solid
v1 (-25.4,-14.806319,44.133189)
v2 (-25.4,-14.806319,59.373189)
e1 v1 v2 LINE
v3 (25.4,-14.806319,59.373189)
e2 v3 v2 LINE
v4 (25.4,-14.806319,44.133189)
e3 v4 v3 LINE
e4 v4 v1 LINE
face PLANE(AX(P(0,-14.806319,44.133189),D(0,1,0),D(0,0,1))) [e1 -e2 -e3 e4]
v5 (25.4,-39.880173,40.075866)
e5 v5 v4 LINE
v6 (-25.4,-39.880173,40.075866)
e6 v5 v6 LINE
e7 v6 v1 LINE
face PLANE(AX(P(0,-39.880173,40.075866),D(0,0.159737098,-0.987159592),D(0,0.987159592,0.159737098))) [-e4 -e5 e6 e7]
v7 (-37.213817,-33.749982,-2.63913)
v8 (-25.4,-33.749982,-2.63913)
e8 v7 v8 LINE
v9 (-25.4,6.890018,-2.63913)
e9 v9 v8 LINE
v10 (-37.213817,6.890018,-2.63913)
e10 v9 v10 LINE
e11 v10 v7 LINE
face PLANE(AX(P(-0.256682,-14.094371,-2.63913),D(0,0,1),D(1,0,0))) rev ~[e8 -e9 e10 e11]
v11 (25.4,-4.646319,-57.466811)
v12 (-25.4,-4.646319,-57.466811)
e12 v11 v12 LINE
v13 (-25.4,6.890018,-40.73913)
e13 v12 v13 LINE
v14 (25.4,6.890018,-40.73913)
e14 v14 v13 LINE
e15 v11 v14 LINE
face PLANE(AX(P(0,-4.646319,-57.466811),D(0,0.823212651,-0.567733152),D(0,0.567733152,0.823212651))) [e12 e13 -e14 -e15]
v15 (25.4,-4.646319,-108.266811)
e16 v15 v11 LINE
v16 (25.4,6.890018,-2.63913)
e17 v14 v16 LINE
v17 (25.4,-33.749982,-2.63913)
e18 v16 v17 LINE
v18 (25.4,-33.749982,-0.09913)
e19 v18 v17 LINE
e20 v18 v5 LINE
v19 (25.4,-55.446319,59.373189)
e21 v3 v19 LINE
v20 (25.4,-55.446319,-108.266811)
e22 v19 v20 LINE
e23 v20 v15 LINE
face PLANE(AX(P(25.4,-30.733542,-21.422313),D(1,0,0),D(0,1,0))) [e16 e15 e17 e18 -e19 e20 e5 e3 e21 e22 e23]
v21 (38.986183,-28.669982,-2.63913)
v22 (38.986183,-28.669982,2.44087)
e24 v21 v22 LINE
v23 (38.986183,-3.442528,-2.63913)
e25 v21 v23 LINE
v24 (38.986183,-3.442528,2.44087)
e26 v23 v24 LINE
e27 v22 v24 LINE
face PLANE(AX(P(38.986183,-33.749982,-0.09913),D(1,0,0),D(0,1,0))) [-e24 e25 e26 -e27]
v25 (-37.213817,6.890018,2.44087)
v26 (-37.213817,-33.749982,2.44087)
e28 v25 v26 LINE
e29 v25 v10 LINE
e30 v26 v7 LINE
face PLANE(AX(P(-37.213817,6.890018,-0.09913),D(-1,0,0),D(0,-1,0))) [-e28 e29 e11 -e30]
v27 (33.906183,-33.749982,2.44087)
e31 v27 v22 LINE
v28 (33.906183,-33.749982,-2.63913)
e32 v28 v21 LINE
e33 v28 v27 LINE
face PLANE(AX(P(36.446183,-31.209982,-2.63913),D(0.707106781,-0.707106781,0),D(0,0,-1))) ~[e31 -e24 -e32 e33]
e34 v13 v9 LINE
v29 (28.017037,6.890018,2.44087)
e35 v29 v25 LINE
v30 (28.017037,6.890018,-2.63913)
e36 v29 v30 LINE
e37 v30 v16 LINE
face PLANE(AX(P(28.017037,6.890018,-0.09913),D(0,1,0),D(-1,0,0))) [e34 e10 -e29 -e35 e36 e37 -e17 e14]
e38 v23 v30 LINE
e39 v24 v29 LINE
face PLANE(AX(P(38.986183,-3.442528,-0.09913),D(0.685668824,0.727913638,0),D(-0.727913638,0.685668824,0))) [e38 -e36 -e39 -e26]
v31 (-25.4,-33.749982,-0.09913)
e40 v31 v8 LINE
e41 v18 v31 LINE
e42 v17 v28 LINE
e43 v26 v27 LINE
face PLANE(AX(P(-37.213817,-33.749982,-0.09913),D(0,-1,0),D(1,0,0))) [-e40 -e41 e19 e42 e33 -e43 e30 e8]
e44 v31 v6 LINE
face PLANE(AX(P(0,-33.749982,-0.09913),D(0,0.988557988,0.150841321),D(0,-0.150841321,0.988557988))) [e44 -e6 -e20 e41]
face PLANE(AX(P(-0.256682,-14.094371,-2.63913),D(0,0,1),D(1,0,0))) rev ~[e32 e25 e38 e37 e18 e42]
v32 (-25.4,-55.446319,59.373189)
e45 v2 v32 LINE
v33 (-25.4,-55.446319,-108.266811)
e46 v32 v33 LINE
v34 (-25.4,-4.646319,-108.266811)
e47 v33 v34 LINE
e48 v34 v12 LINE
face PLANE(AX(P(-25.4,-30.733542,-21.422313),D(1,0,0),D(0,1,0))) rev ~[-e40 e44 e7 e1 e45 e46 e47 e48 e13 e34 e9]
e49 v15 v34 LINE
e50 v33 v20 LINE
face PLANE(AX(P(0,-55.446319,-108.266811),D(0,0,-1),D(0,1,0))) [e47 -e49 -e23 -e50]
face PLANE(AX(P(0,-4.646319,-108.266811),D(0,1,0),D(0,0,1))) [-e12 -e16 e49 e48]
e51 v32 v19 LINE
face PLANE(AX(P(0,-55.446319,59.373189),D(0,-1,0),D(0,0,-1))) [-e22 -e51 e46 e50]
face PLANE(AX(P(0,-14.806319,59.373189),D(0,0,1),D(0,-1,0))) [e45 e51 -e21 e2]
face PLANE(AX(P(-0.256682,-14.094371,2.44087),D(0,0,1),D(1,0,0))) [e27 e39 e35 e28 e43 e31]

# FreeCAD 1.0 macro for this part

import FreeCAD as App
import Part
import Sketcher
from FreeCAD import Vector
Q = App.Units.Quantity


def edges_at(feature, points):
    """Names of the edges that pass closest to the given points."""
    edges = feature.Shape.Edges
    near = lambda p: min(range(len(edges)), key=lambda i: edges[i].distToShape(Part.Vertex(*p))[0])
    return sorted({f"Edge{near(p) + 1}" for p in points})

doc = App.newDocument("Part")
body = doc.addObject("PartDesign::Body", "Body")

sketch1 = doc.addObject("Sketcher::SketchObject", "Sketch")
body.addObject(sketch1)
sketch1.AttachmentSupport = (doc.YZ_Plane, [""])
sketch1.MapMode = "FlatFace"
sketch1.addGeometry(Part.LineSegment(Vector(-15, 59, 0), Vector(-55, 59, 0)), False)
sketch1.addGeometry(Part.LineSegment(Vector(-55, 59, 0), Vector(-55, -108, 0)), False)
sketch1.addGeometry(Part.LineSegment(Vector(-55, -108, 0), Vector(-5, -108, 0)), False)
sketch1.addGeometry(Part.LineSegment(Vector(-5, -108, 0), Vector(-5, -57, 0)), False)
sketch1.addGeometry(Part.LineSegment(Vector(-5, -57, 0), Vector(7, -41, 0)), False)
sketch1.addGeometry(Part.LineSegment(Vector(7, -41, 0), Vector(7, 0, 0)), False)
sketch1.addGeometry(Part.LineSegment(Vector(7, 0, 0), Vector(-34, 0, 0)), False)
sketch1.addGeometry(Part.LineSegment(Vector(-34, 0, 0), Vector(-40, 40, 0)), False)
sketch1.addGeometry(Part.LineSegment(Vector(-40, 40, 0), Vector(-15, 44, 0)), False)
sketch1.addGeometry(Part.LineSegment(Vector(-15, 44, 0), Vector(-15, 59, 0)), False)
sketch1.addConstraint(Sketcher.Constraint("Coincident", 0, 2, 1, 1))
sketch1.addConstraint(Sketcher.Constraint("Coincident", 1, 2, 2, 1))
sketch1.addConstraint(Sketcher.Constraint("Coincident", 2, 2, 3, 1))
sketch1.addConstraint(Sketcher.Constraint("Coincident", 3, 2, 4, 1))
sketch1.addConstraint(Sketcher.Constraint("Coincident", 4, 2, 5, 1))
sketch1.addConstraint(Sketcher.Constraint("Coincident", 5, 2, 6, 1))
sketch1.addConstraint(Sketcher.Constraint("Coincident", 6, 2, 7, 1))
sketch1.addConstraint(Sketcher.Constraint("Coincident", 7, 2, 8, 1))
sketch1.addConstraint(Sketcher.Constraint("Coincident", 8, 2, 9, 1))
sketch1.addConstraint(Sketcher.Constraint("Coincident", 9, 2, 0, 1))
sketch1.addConstraint(Sketcher.Constraint("Horizontal", 0))
sketch1.addConstraint(Sketcher.Constraint("Vertical", 1))
sketch1.addConstraint(Sketcher.Constraint("Horizontal", 2))
sketch1.addConstraint(Sketcher.Constraint("Vertical", 3))
sketch1.addConstraint(Sketcher.Constraint("Vertical", 5))
sketch1.addConstraint(Sketcher.Constraint("Horizontal", 6))
sketch1.addConstraint(Sketcher.Constraint("Vertical", 9))
sketch1.addConstraint(Sketcher.Constraint("Equal", 0, 6))
sketch1.addConstraint(Sketcher.Constraint("Equal", 2, 3))
sketch1.addConstraint(Sketcher.Constraint("Equal", 6, 5))
sketch1.addConstraint(Sketcher.Constraint("DistanceX", 2, 1, 2, 2, Q("2 in")))
sketch1.addConstraint(Sketcher.Constraint("Distance", 8, Q("1 in")))
sketch1.addConstraint(Sketcher.Constraint("DistanceX", 0, 2, 0, 1, Q("1.6 in")))
sketch1.addConstraint(Sketcher.Constraint("DistanceY", 1, 2, 1, 1, Q("6.6 in")))
sketch1.addConstraint(Sketcher.Constraint("DistanceY", 9, 1, 9, 2, Q("0.6 in")))
sketch1.addConstraint(Sketcher.Constraint("Distance", 4, Q("0.8 in")))
sketch1.addConstraint(Sketcher.Constraint("Distance", 7, Q("1.6 in")))
sketch1.addConstraint(Sketcher.Constraint("DistanceX", 0, 2, -1, 1, 55.446319))
sketch1.addConstraint(Sketcher.Constraint("DistanceY", -1, 1, 0, 2, 59.373189))
sketch1.addConstraint(Sketcher.Constraint("DistanceX", -1, 1, 4, 2, 6.890018))
pad1 = doc.addObject("PartDesign::Pad", "Pad")
body.addObject(pad1)
pad1.Profile = sketch1
pad1.Length = Q("2 in")
pad1.Midplane = True

sketch2 = doc.addObject("Sketcher::SketchObject", "Sketch001")
body.addObject(sketch2)
sketch2.AttachmentSupport = (doc.XY_Plane, [""])
sketch2.MapMode = "FlatFace"
sketch2.AttachmentOffset = App.Placement(Vector(0, 0, -0.09913), App.Rotation())
sketch2.addGeometry(Part.LineSegment(Vector(-37, -34, 0), Vector(39, -34, 0)), False)
sketch2.addGeometry(Part.LineSegment(Vector(39, -34, 0), Vector(39, -3, 0)), False)
sketch2.addGeometry(Part.LineSegment(Vector(39, -3, 0), Vector(28, 7, 0)), False)
sketch2.addGeometry(Part.LineSegment(Vector(28, 7, 0), Vector(-37, 7, 0)), False)
sketch2.addGeometry(Part.LineSegment(Vector(-37, 7, 0), Vector(-37, -34, 0)), False)
sketch2.addConstraint(Sketcher.Constraint("Coincident", 0, 2, 1, 1))
sketch2.addConstraint(Sketcher.Constraint("Coincident", 1, 2, 2, 1))
sketch2.addConstraint(Sketcher.Constraint("Coincident", 2, 2, 3, 1))
sketch2.addConstraint(Sketcher.Constraint("Coincident", 3, 2, 4, 1))
sketch2.addConstraint(Sketcher.Constraint("Coincident", 4, 2, 0, 1))
sketch2.addConstraint(Sketcher.Constraint("Horizontal", 0))
sketch2.addConstraint(Sketcher.Constraint("Vertical", 1))
sketch2.addConstraint(Sketcher.Constraint("Horizontal", 3))
sketch2.addConstraint(Sketcher.Constraint("Vertical", 4))
sketch2.addConstraint(Sketcher.Constraint("DistanceX", 0, 1, 0, 2, Q("3 in")))
sketch2.addConstraint(Sketcher.Constraint("DistanceY", 4, 2, 4, 1, Q("1.6 in")))
sketch2.addConstraint(Sketcher.Constraint("DistanceX", 3, 2, 3, 1, 65.230854))
sketch2.addConstraint(Sketcher.Constraint("DistanceY", 1, 1, 1, 2, 30.307453))
sketch2.addConstraint(Sketcher.Constraint("DistanceY", 0, 2, -1, 1, 33.749982))
sketch2.addConstraint(Sketcher.Constraint("DistanceX", -1, 1, 0, 2, 38.986183))
pad2 = doc.addObject("PartDesign::Pad", "Pad001")
body.addObject(pad2)
pad2.Profile = sketch2
pad2.Length = Q("0.2 in")
pad2.Midplane = True
doc.recompute()

chamfer = doc.addObject("PartDesign::Chamfer", "Chamfer")
body.addObject(chamfer)
chamfer.Base = (pad2, edges_at(pad2, [(38.986, -33.75, -0.099)]))
chamfer.Size = Q("0.2 in")

sketch3 = doc.addObject("Sketcher::SketchObject", "Sketch002")
body.addObject(sketch3)
sketch3.AttachmentSupport = (doc.YZ_Plane, [""])
sketch3.MapMode = "FlatFace"
sketch3.addGeometry(Part.LineSegment(Vector(-15, 59, 0), Vector(-55, 59, 0)), False)
sketch3.addGeometry(Part.LineSegment(Vector(-55, 59, 0), Vector(-55, -108, 0)), False)
sketch3.addGeometry(Part.LineSegment(Vector(-55, -108, 0), Vector(-5, -108, 0)), False)
sketch3.addGeometry(Part.LineSegment(Vector(-5, -108, 0), Vector(-5, -57, 0)), False)
sketch3.addGeometry(Part.LineSegment(Vector(-5, -57, 0), Vector(7, -41, 0)), False)
sketch3.addGeometry(Part.LineSegment(Vector(7, -41, 0), Vector(7, 0, 0)), False)
sketch3.addGeometry(Part.LineSegment(Vector(7, 0, 0), Vector(-34, 0, 0)), False)
sketch3.addGeometry(Part.LineSegment(Vector(-34, 0, 0), Vector(-40, 40, 0)), False)
sketch3.addGeometry(Part.LineSegment(Vector(-40, 40, 0), Vector(-15, 44, 0)), False)
sketch3.addGeometry(Part.LineSegment(Vector(-15, 44, 0), Vector(-15, 59, 0)), False)
sketch3.addConstraint(Sketcher.Constraint("Coincident", 0, 2, 1, 1))
sketch3.addConstraint(Sketcher.Constraint("Coincident", 1, 2, 2, 1))
sketch3.addConstraint(Sketcher.Constraint("Coincident", 2, 2, 3, 1))
sketch3.addConstraint(Sketcher.Constraint("Coincident", 3, 2, 4, 1))
sketch3.addConstraint(Sketcher.Constraint("Coincident", 4, 2, 5, 1))
sketch3.addConstraint(Sketcher.Constraint("Coincident", 5, 2, 6, 1))
sketch3.addConstraint(Sketcher.Constraint("Coincident", 6, 2, 7, 1))
sketch3.addConstraint(Sketcher.Constraint("Coincident", 7, 2, 8, 1))
sketch3.addConstraint(Sketcher.Constraint("Coincident", 8, 2, 9, 1))
sketch3.addConstraint(Sketcher.Constraint("Coincident", 9, 2, 0, 1))
sketch3.addConstraint(Sketcher.Constraint("Horizontal", 0))
sketch3.addConstraint(Sketcher.Constraint("Vertical", 1))
sketch3.addConstraint(Sketcher.Constraint("Horizontal", 2))
sketch3.addConstraint(Sketcher.Constraint("Vertical", 3))
sketch3.addConstraint(Sketcher.Constraint("Vertical", 5))
sketch3.addConstraint(Sketcher.Constraint("Horizontal", 6))
sketch3.addConstraint(Sketcher.Constraint("Vertical", 9))
sketch3.addConstraint(Sketcher.Constraint("Equal", 0, 6))
sketch3.addConstraint(Sketcher.Constraint("Equal", 2, 3))
sketch3.addConstraint(Sketcher.Constraint("Equal", 6, 5))
sketch3.addConstraint(Sketcher.Constraint("DistanceX", 2, 1, 2, 2, Q("2 in")))
sketch3.addConstraint(Sketcher.Constraint("Distance", 8, Q("1 in")))
sketch3.addConstraint(Sketcher.Constraint("DistanceX", 0, 2, 0, 1, Q("1.6 in")))
sketch3.addConstraint(Sketcher.Constraint("DistanceY", 1, 2, 1, 1, Q("6.6 in")))
sketch3.addConstraint(Sketcher.Constraint("DistanceY", 9, 1, 9, 2, Q("0.6 in")))
sketch3.addConstraint(Sketcher.Constraint("Distance", 4, Q("0.8 in")))
sketch3.addConstraint(Sketcher.Constraint("Distance", 7, Q("1.6 in")))
sketch3.addConstraint(Sketcher.Constraint("DistanceX", 0, 2, -1, 1, 55.446319))
sketch3.addConstraint(Sketcher.Constraint("DistanceY", -1, 1, 0, 2, 59.373189))
sketch3.addConstraint(Sketcher.Constraint("DistanceX", -1, 1, 4, 2, 6.890018))
pad3 = doc.addObject("PartDesign::Pad", "Pad002")
body.addObject(pad3)
pad3.Profile = sketch3
pad3.Length = Q("1 in")

doc.recompute()
